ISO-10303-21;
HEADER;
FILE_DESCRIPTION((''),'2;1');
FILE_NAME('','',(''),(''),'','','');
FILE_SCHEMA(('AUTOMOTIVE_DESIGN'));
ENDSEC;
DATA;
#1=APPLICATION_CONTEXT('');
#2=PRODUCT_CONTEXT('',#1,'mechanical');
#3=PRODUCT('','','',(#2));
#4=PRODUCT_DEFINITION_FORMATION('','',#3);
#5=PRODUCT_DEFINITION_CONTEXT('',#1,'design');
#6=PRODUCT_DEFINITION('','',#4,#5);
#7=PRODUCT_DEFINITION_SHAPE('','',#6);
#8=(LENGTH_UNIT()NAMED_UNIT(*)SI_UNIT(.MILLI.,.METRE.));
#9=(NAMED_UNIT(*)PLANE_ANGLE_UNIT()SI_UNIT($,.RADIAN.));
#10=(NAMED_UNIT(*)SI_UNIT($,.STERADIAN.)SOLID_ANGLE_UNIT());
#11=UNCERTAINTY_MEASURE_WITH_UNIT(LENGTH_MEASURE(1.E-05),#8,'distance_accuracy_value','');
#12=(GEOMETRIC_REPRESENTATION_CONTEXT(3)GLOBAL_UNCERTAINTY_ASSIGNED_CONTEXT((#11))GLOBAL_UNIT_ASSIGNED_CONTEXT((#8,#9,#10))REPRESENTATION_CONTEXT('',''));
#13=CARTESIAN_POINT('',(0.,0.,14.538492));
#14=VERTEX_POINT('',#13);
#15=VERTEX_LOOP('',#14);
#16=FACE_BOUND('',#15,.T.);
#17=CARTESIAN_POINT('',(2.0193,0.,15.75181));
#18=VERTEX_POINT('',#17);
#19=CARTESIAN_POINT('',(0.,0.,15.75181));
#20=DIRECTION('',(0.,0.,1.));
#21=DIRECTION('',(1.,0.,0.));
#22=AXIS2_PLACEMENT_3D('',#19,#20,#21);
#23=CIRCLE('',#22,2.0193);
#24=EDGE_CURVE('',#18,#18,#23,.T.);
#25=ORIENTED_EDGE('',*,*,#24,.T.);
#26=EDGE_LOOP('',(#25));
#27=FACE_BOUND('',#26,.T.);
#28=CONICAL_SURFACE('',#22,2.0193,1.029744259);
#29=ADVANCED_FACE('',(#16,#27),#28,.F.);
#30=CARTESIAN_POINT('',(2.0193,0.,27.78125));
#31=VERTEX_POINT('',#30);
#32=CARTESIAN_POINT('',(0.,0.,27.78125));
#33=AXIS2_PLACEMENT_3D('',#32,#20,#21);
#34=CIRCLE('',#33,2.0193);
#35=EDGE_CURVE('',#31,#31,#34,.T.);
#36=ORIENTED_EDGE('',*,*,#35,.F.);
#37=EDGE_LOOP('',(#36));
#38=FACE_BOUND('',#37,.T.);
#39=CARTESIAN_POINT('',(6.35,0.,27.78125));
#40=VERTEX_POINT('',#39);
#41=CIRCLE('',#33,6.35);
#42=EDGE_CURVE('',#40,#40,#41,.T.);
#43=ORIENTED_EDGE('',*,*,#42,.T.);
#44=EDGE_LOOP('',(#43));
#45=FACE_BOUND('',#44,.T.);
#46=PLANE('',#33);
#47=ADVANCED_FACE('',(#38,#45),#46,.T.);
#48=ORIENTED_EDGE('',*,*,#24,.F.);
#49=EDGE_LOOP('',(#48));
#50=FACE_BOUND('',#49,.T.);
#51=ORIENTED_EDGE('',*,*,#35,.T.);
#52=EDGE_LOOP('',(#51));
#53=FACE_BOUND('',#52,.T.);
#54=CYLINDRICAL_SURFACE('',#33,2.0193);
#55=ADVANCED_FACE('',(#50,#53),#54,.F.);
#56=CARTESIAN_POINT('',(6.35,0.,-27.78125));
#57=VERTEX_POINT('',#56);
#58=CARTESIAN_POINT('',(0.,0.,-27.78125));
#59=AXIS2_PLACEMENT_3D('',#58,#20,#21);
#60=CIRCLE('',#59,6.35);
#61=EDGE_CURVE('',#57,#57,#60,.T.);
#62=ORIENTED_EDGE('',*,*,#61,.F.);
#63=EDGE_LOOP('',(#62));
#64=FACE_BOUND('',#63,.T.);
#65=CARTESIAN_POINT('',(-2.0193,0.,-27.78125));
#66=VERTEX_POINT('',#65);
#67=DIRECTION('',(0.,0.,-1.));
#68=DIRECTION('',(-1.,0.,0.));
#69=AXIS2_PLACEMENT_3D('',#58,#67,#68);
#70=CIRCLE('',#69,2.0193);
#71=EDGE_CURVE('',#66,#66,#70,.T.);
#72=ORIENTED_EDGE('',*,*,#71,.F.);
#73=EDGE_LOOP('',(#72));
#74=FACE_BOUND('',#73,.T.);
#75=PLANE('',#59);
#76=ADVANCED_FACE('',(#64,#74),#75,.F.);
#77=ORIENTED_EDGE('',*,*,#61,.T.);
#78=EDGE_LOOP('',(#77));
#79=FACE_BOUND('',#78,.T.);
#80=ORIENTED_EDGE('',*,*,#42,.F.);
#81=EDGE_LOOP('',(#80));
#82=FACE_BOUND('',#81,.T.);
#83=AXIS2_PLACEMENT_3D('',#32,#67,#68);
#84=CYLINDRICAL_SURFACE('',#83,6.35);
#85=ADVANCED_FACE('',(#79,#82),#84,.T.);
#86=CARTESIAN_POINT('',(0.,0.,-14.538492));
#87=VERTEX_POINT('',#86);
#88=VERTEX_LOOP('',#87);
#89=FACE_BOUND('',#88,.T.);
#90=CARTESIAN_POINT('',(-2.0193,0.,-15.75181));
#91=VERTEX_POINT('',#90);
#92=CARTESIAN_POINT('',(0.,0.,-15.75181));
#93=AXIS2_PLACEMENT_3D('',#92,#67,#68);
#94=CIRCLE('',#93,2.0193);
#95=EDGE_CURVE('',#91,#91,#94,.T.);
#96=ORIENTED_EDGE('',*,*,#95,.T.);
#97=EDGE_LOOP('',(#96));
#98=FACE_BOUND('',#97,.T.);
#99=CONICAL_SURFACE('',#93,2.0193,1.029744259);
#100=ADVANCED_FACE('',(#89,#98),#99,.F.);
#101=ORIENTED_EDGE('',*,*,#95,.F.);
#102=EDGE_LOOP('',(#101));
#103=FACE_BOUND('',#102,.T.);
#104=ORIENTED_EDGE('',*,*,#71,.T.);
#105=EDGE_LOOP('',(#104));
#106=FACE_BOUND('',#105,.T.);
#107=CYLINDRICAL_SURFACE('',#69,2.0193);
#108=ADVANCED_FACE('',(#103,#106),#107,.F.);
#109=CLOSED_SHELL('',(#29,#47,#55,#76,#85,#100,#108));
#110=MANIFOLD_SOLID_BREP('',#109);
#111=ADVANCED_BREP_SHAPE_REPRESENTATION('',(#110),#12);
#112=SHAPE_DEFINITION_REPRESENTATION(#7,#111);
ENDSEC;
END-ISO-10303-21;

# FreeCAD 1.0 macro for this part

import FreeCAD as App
import Part
import Sketcher
from FreeCAD import Vector
Q = App.Units.Quantity

doc = App.newDocument("Part")
params = doc.addObject("Spreadsheet::Sheet", "Params")
for row, (alias, value) in enumerate([
    ("sketch1_diameter", "0.5 in"),
    ("pad1_length", "2.1875 in"),
    ("sketch2_diameter", "0.159 in"),
    ("hole_diameter", "0.159 in"),
    ("hole_depth", "0.4736 in"),
    ("sketch3_diameter", "0.159 in"),
    ("hole2_diameter", "0.159 in"),
    ("hole2_depth", "0.4736 in"),
], start=1):
    params.set(f"A{row}", alias)
    params.set(f"B{row}", "=" + value)
    params.setAlias(f"B{row}", alias)

body = doc.addObject("PartDesign::Body", "Body")

# Sketch on XY plane
sketch1 = body.newObject("Sketcher::SketchObject", "Sketch")
sketch1.AttachmentSupport = (doc.getObject("XY_Plane"), [""])
sketch1.MapMode = "FlatFace"
sketch1.addGeometry(Part.Circle(Vector(0, 0, 0), Vector(0, 0, 1), 6), False)
sketch1.addConstraint([
    Sketcher.Constraint("Coincident", 0, 3, -1, 1),
    Sketcher.Constraint("Diameter", 0, Q("0.5 in")),
])
sketch1.setExpression("Constraints[1]", "Params.sketch1_diameter")
pad1 = body.newObject("PartDesign::Pad", "Pad")
pad1.Profile = sketch1
pad1.setExpression("Length", "Params.pad1_length")
pad1.Midplane = True

# Sketch on XY plane
sketch2 = body.newObject("Sketcher::SketchObject", "Sketch001")
sketch2.AttachmentSupport = (doc.getObject("XY_Plane"), [""])
sketch2.MapMode = "FlatFace"
sketch2.AttachmentOffset = App.Placement(Vector(0, 0, 1.09375 * 25.4), App.Rotation())
sketch2.addGeometry(Part.Circle(Vector(0, 0, 0), Vector(0, 0, 1), 2), False)
sketch2.addConstraint([
    Sketcher.Constraint("Coincident", 0, 3, -1, 1),
    Sketcher.Constraint("Diameter", 0, Q("0.159 in")),
])
sketch2.setExpression("Constraints[1]", "Params.sketch2_diameter")
doc.recompute()
hole = body.newObject("PartDesign::Hole", "Hole")
hole.Profile = sketch2
hole.ThreadType = "None"
hole.setExpression("Diameter", "Params.hole_diameter")
hole.DepthType = "Dimension"
hole.setExpression("Depth", "Params.hole_depth")
hole.DrillPoint = "Angled"
hole.DrillPointAngle = 118

# Sketch on XY plane
sketch3 = body.newObject("Sketcher::SketchObject", "Sketch002")
sketch3.AttachmentSupport = (doc.getObject("XY_Plane"), [""])
sketch3.MapMode = "FlatFace"
sketch3.AttachmentOffset = App.Placement(Vector(0, 0, -1.09375 * 25.4), App.Rotation())
sketch3.addGeometry(Part.Circle(Vector(0, 0, 0), Vector(0, 0, 1), 2), False)
sketch3.addConstraint([
    Sketcher.Constraint("Coincident", 0, 3, -1, 1),
    Sketcher.Constraint("Diameter", 0, Q("0.159 in")),
])
sketch3.setExpression("Constraints[1]", "Params.sketch3_diameter")
doc.recompute()
hole2 = body.newObject("PartDesign::Hole", "Hole001")
hole2.Profile = sketch3
hole2.ThreadType = "None"
hole2.setExpression("Diameter", "Params.hole2_diameter")
hole2.DepthType = "Dimension"
hole2.setExpression("Depth", "Params.hole2_depth")
hole2.DrillPoint = "Angled"
hole2.DrillPointAngle = 118
hole2.Reversed = True

doc.recompute()
